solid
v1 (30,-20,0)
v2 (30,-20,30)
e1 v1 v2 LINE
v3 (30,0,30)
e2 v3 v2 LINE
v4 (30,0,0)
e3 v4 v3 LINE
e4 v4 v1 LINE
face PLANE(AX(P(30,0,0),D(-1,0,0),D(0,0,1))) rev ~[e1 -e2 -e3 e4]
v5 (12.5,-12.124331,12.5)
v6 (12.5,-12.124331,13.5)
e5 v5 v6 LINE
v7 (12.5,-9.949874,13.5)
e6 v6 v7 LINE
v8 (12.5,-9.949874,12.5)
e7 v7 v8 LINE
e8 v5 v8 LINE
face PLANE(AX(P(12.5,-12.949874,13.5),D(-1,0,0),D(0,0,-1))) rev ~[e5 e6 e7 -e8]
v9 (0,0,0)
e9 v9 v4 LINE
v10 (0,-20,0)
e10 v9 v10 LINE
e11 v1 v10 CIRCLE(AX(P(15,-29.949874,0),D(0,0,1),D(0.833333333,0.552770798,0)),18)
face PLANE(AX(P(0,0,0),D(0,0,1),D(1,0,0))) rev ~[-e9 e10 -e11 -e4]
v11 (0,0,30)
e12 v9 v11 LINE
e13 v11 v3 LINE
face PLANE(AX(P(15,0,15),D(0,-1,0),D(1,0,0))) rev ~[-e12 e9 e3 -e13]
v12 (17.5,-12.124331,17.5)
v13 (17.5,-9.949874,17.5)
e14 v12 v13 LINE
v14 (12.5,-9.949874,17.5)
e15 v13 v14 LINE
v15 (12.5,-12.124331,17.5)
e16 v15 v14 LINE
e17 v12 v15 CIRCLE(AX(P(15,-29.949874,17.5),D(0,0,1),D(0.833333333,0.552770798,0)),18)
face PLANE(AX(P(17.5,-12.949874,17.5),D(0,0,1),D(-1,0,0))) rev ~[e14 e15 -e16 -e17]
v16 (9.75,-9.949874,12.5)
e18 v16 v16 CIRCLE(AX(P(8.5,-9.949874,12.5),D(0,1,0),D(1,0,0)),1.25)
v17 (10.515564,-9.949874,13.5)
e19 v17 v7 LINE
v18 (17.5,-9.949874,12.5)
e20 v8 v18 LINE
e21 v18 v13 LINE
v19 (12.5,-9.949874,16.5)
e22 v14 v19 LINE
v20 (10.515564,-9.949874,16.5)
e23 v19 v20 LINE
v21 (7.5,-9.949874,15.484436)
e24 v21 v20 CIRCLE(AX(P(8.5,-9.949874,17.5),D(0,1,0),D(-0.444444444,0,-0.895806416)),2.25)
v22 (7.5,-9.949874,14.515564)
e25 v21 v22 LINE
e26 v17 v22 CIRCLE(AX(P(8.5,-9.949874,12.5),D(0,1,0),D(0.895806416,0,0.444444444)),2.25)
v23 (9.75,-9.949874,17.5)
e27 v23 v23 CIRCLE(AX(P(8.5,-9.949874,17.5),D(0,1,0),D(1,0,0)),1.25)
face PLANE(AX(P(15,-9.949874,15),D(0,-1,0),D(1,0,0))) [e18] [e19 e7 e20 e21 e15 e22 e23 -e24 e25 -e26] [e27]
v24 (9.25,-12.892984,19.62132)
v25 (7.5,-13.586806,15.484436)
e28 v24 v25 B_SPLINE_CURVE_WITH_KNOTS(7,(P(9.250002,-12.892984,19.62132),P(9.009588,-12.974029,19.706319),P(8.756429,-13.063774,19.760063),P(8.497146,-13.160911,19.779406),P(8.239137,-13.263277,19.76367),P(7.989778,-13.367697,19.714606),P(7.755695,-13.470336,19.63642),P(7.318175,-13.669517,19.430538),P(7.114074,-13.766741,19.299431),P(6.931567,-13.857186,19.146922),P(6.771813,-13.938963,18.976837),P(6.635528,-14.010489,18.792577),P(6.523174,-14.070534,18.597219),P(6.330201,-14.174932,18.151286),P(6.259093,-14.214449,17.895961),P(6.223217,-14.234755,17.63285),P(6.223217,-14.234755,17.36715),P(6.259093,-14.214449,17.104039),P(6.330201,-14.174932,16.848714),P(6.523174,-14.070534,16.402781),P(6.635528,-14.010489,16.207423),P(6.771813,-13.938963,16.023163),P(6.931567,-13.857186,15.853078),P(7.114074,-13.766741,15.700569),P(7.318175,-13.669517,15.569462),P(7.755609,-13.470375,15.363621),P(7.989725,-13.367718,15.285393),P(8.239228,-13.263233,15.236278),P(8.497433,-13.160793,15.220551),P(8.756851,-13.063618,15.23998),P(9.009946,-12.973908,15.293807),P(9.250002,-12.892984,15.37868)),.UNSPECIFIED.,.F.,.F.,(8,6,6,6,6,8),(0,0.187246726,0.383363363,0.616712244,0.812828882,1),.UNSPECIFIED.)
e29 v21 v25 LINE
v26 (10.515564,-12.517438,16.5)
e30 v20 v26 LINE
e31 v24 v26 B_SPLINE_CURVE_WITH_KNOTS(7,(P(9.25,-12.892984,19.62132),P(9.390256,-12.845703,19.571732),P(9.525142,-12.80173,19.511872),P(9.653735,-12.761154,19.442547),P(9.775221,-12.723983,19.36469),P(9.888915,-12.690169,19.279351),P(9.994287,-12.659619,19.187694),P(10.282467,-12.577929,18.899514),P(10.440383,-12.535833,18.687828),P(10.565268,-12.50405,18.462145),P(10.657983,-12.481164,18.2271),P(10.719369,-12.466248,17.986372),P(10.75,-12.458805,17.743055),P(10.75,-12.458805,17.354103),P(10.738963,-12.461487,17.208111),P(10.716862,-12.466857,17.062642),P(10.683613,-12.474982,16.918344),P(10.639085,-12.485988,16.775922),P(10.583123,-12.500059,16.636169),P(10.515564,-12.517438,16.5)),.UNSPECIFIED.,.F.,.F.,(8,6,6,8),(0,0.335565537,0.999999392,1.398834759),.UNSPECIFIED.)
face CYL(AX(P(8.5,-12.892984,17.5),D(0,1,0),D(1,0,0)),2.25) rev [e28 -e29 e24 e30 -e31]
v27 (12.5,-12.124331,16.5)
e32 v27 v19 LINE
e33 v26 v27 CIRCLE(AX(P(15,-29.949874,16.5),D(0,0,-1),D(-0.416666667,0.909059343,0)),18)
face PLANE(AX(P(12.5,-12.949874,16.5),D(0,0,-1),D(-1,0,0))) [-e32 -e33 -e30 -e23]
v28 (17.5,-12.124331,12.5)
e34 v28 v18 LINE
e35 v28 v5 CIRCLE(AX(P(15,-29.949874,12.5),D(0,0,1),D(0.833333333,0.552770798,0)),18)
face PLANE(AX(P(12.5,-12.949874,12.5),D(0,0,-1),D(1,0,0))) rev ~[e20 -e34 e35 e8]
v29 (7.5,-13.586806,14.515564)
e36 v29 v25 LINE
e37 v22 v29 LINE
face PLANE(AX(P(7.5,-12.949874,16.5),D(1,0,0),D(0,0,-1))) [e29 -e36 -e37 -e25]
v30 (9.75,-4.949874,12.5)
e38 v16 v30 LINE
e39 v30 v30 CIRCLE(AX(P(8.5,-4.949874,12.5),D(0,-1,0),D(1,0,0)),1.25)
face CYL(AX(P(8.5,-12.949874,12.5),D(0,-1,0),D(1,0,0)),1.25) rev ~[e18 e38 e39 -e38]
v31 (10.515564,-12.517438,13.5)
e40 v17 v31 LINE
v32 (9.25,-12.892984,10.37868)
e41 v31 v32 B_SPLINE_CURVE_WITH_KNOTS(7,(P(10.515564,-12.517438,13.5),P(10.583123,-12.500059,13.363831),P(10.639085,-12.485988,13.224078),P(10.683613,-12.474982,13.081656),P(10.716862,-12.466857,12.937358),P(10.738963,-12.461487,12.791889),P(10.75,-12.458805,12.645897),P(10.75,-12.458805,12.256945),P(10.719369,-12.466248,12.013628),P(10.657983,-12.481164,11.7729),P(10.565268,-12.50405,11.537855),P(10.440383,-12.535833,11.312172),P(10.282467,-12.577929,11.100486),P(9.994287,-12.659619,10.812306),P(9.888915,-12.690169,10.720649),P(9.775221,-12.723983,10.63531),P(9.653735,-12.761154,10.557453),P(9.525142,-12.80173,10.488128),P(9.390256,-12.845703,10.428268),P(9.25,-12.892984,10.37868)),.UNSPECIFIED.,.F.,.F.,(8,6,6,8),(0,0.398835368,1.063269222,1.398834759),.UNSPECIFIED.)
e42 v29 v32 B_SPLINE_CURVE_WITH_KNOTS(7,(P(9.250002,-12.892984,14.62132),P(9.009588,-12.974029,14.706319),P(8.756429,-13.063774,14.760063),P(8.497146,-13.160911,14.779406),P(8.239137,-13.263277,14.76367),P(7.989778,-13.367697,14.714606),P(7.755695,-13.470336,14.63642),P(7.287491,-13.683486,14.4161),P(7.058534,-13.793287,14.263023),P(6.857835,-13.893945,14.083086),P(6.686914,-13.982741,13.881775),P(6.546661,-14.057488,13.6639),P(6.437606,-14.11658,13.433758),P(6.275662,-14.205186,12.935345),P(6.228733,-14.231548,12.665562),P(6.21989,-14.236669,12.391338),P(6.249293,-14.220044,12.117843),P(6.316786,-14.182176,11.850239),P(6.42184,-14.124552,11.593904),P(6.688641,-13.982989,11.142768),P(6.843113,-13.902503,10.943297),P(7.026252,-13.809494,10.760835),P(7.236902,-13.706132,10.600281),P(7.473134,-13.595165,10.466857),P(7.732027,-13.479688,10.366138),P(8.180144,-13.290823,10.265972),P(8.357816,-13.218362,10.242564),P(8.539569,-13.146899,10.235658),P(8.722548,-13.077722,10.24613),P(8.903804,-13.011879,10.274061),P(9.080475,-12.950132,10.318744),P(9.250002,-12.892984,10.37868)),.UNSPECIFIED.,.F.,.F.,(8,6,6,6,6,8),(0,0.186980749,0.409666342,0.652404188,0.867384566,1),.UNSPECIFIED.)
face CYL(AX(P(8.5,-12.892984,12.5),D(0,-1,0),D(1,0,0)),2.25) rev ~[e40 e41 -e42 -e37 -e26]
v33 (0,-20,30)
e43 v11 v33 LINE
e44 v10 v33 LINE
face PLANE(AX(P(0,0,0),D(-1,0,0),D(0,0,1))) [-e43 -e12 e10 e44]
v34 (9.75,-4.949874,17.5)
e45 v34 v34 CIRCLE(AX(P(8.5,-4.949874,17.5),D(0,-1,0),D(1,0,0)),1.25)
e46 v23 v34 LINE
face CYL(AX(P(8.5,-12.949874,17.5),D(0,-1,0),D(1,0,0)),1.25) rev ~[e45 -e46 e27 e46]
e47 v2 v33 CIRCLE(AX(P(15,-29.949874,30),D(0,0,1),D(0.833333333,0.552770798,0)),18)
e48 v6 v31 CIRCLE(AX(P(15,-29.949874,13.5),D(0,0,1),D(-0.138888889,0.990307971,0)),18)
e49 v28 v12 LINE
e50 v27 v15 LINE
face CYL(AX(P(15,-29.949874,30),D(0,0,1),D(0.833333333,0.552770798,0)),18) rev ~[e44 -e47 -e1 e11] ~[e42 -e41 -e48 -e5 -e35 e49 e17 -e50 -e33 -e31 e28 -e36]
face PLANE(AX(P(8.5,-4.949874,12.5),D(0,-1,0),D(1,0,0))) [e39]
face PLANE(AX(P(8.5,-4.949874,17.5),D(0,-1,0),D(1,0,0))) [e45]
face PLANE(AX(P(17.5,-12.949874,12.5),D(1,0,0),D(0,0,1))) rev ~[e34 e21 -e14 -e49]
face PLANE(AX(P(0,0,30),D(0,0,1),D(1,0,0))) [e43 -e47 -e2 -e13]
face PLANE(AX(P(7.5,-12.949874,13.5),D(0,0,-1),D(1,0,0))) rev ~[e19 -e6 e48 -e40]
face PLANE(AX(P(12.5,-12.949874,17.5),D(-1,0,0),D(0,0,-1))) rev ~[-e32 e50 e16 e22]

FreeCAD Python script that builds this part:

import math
import FreeCAD as App
import Part
import Sketcher

doc = App.newDocument("Part")
params = doc.addObject("Spreadsheet::Sheet", "Params")
for row, (alias, value) in enumerate([
    ("sketch1_width", "30 mm"),
    ("pad1_length", "20 mm"),
    ("sketch2_radius", "18 mm"),
    ("sketch2_width", "30 mm"),
    ("sketch3_width", "5 mm"),
    ("sketch3_height", "1 mm"),
    ("pocket2_length", "3 mm"),
    ("sketch4_width", "5 mm"),
    ("sketch4_height", "1 mm"),
    ("sketch5_diameter", "2.5 mm"),
    ("pocket4_length", "8 mm"),
    ("sketch6_diameter", "2.5 mm"),
    ("sketch7_diameter", "4.5 mm"),
    ("pocket6_length", "2.94311 mm"),
    ("sketch8_diameter", "4.5 mm"),
], start=1):
    params.set(f"A{row}", alias)
    params.set(f"B{row}", "=" + value)
    params.setAlias(f"B{row}", alias)

body = doc.addObject("PartDesign::Body", "Body")

sketch1 = body.newObject("Sketcher::SketchObject", "Sketch")
sketch1.AttachmentSupport = (doc.getObject("XZ_Plane"), [""])
sketch1.MapMode = "FlatFace"
sketch1.addGeometry(Part.LineSegment(App.Vector(0, 30, 0), App.Vector(0, 0, 0)), False)
sketch1.addGeometry(Part.LineSegment(App.Vector(0, 0, 0), App.Vector(30, 0, 0)), False)
sketch1.addGeometry(Part.LineSegment(App.Vector(30, 0, 0), App.Vector(30, 30, 0)), False)
sketch1.addGeometry(Part.LineSegment(App.Vector(30, 30, 0), App.Vector(0, 30, 0)), False)
sketch1.addConstraint(Sketcher.Constraint("Coincident", 0, 2, 1, 1))
sketch1.addConstraint(Sketcher.Constraint("Coincident", 1, 2, 2, 1))
sketch1.addConstraint(Sketcher.Constraint("Coincident", 2, 2, 3, 1))
sketch1.addConstraint(Sketcher.Constraint("Coincident", 3, 2, 0, 1))
sketch1.addConstraint(Sketcher.Constraint("Vertical", 0))
sketch1.addConstraint(Sketcher.Constraint("Horizontal", 1))
sketch1.addConstraint(Sketcher.Constraint("Vertical", 2))
sketch1.addConstraint(Sketcher.Constraint("Horizontal", 3))
sketch1.addConstraint(Sketcher.Constraint("Coincident", 0, 2, -1, 1))
sketch1.addConstraint(Sketcher.Constraint("Equal", 3, 0))
sketch1.addConstraint(Sketcher.Constraint("DistanceX", 1, 1, 1, 2, 30.0))
sketch1.setExpression("Constraints[10]", "Params.sketch1_width")
pad1 = body.newObject("PartDesign::Pad", "Pad")
pad1.Profile = sketch1
pad1.setExpression("Length", "Params.pad1_length")

sketch2 = body.newObject("Sketcher::SketchObject", "Sketch001")
sketch2.AttachmentSupport = (doc.getObject("XY_Plane"), [""])
sketch2.MapMode = "FlatFace"
sketch2.AttachmentOffset = App.Placement(App.Vector(0, 0, 30), App.Rotation())
sketch2.addGeometry(Part.LineSegment(App.Vector(0, -20, 0), App.Vector(30, -20, 0)), False)
sketch2.addGeometry(Part.ArcOfCircle(Part.Circle(App.Vector(15, -30, 0), App.Vector(0, 0, 1), 18), math.radians(34), math.radians(146)), False)
sketch2.addConstraint(Sketcher.Constraint("Coincident", 0, 1, 1, 2))
sketch2.addConstraint(Sketcher.Constraint("Coincident", 1, 1, 0, 2))
sketch2.addConstraint(Sketcher.Constraint("Horizontal", 0))
sketch2.addConstraint(Sketcher.Constraint("PointOnObject", 0, 1, -2))
sketch2.addConstraint(Sketcher.Constraint("Radius", 1, 18.0))
sketch2.addConstraint(Sketcher.Constraint("DistanceX", 0, 1, 0, 2, 30.0))
sketch2.addConstraint(Sketcher.Constraint("DistanceY", 0, 1, -1, 1, 20.0))
sketch2.setExpression("Constraints[4]", "Params.sketch2_radius")
sketch2.setExpression("Constraints[5]", "Params.sketch2_width")
pocket1 = body.newObject("PartDesign::Pocket", "Pocket")
pocket1.Profile = sketch2
pocket1.Type = "ThroughAll"

sketch3 = body.newObject("Sketcher::SketchObject", "Sketch002")
sketch3.AttachmentSupport = (doc.getObject("XZ_Plane"), [""])
sketch3.MapMode = "FlatFace"
sketch3.AttachmentOffset = App.Placement(App.Vector(0, 0, 12.949874), App.Rotation())
sketch3.addGeometry(Part.LineSegment(App.Vector(17.5, 17.5, 0), App.Vector(12.5, 17.5, 0)), False)
sketch3.addGeometry(Part.LineSegment(App.Vector(12.5, 17.5, 0), App.Vector(12.5, 16.5, 0)), False)
sketch3.addGeometry(Part.LineSegment(App.Vector(12.5, 16.5, 0), App.Vector(7.5, 16.5, 0)), False)
sketch3.addGeometry(Part.LineSegment(App.Vector(7.5, 16.5, 0), App.Vector(7.5, 13.5, 0)), False)
sketch3.addGeometry(Part.LineSegment(App.Vector(7.5, 13.5, 0), App.Vector(12.5, 13.5, 0)), False)
sketch3.addGeometry(Part.LineSegment(App.Vector(12.5, 13.5, 0), App.Vector(12.5, 12.5, 0)), False)
sketch3.addGeometry(Part.LineSegment(App.Vector(12.5, 12.5, 0), App.Vector(17.5, 12.5, 0)), False)
sketch3.addGeometry(Part.LineSegment(App.Vector(17.5, 12.5, 0), App.Vector(17.5, 17.5, 0)), False)
sketch3.addConstraint(Sketcher.Constraint("Coincident", 0, 2, 1, 1))
sketch3.addConstraint(Sketcher.Constraint("Coincident", 1, 2, 2, 1))
sketch3.addConstraint(Sketcher.Constraint("Coincident", 2, 2, 3, 1))
sketch3.addConstraint(Sketcher.Constraint("Coincident", 3, 2, 4, 1))
sketch3.addConstraint(Sketcher.Constraint("Coincident", 4, 2, 5, 1))
sketch3.addConstraint(Sketcher.Constraint("Coincident", 5, 2, 6, 1))
sketch3.addConstraint(Sketcher.Constraint("Coincident", 6, 2, 7, 1))
sketch3.addConstraint(Sketcher.Constraint("Coincident", 7, 2, 0, 1))
sketch3.addConstraint(Sketcher.Constraint("Horizontal", 0))
sketch3.addConstraint(Sketcher.Constraint("Vertical", 1))
sketch3.addConstraint(Sketcher.Constraint("Horizontal", 2))
sketch3.addConstraint(Sketcher.Constraint("Vertical", 3))
sketch3.addConstraint(Sketcher.Constraint("Horizontal", 4))
sketch3.addConstraint(Sketcher.Constraint("Vertical", 5))
sketch3.addConstraint(Sketcher.Constraint("Horizontal", 6))
sketch3.addConstraint(Sketcher.Constraint("Vertical", 7))
sketch3.addConstraint(Sketcher.Constraint("Vertical", 1, 2, 4, 2))
sketch3.addConstraint(Sketcher.Constraint("Equal", 0, 2))
sketch3.addConstraint(Sketcher.Constraint("Equal", 1, 5))
sketch3.addConstraint(Sketcher.Constraint("Equal", 6, 7))
sketch3.addConstraint(Sketcher.Constraint("DistanceX", 0, 2, 0, 1, 5.0))
sketch3.addConstraint(Sketcher.Constraint("DistanceY", 1, 2, 1, 1, 1.0))
sketch3.addConstraint(Sketcher.Constraint("DistanceX", -1, 1, 0, 2, 12.5))
sketch3.addConstraint(Sketcher.Constraint("DistanceY", -1, 1, 0, 2, 17.5))
sketch3.setExpression("Constraints[20]", "Params.sketch3_width")
sketch3.setExpression("Constraints[21]", "Params.sketch3_height")
pocket2 = body.newObject("PartDesign::Pocket", "Pocket001")
pocket2.Profile = sketch3
pocket2.setExpression("Length", "Params.pocket2_length")

sketch4 = body.newObject("Sketcher::SketchObject", "Sketch003")
sketch4.AttachmentSupport = (doc.getObject("XZ_Plane"), [""])
sketch4.MapMode = "FlatFace"
sketch4.AttachmentOffset = App.Placement(App.Vector(0, 0, 12.949874), App.Rotation())
sketch4.addGeometry(Part.LineSegment(App.Vector(17.5, 17.5, 0), App.Vector(12.5, 17.5, 0)), False)
sketch4.addGeometry(Part.LineSegment(App.Vector(12.5, 17.5, 0), App.Vector(12.5, 16.5, 0)), False)
sketch4.addGeometry(Part.LineSegment(App.Vector(12.5, 16.5, 0), App.Vector(7.5, 16.5, 0)), False)
sketch4.addGeometry(Part.LineSegment(App.Vector(7.5, 16.5, 0), App.Vector(7.5, 13.5, 0)), False)
sketch4.addGeometry(Part.LineSegment(App.Vector(7.5, 13.5, 0), App.Vector(12.5, 13.5, 0)), False)
sketch4.addGeometry(Part.LineSegment(App.Vector(12.5, 13.5, 0), App.Vector(12.5, 12.5, 0)), False)
sketch4.addGeometry(Part.LineSegment(App.Vector(12.5, 12.5, 0), App.Vector(17.5, 12.5, 0)), False)
sketch4.addGeometry(Part.LineSegment(App.Vector(17.5, 12.5, 0), App.Vector(17.5, 17.5, 0)), False)
sketch4.addConstraint(Sketcher.Constraint("Coincident", 0, 2, 1, 1))
sketch4.addConstraint(Sketcher.Constraint("Coincident", 1, 2, 2, 1))
sketch4.addConstraint(Sketcher.Constraint("Coincident", 2, 2, 3, 1))
sketch4.addConstraint(Sketcher.Constraint("Coincident", 3, 2, 4, 1))
sketch4.addConstraint(Sketcher.Constraint("Coincident", 4, 2, 5, 1))
sketch4.addConstraint(Sketcher.Constraint("Coincident", 5, 2, 6, 1))
sketch4.addConstraint(Sketcher.Constraint("Coincident", 6, 2, 7, 1))
sketch4.addConstraint(Sketcher.Constraint("Coincident", 7, 2, 0, 1))
sketch4.addConstraint(Sketcher.Constraint("Horizontal", 0))
sketch4.addConstraint(Sketcher.Constraint("Vertical", 1))
sketch4.addConstraint(Sketcher.Constraint("Horizontal", 2))
sketch4.addConstraint(Sketcher.Constraint("Vertical", 3))
sketch4.addConstraint(Sketcher.Constraint("Horizontal", 4))
sketch4.addConstraint(Sketcher.Constraint("Vertical", 5))
sketch4.addConstraint(Sketcher.Constraint("Horizontal", 6))
sketch4.addConstraint(Sketcher.Constraint("Vertical", 7))
sketch4.addConstraint(Sketcher.Constraint("Vertical", 1, 2, 4, 2))
sketch4.addConstraint(Sketcher.Constraint("Equal", 0, 2))
sketch4.addConstraint(Sketcher.Constraint("Equal", 1, 5))
sketch4.addConstraint(Sketcher.Constraint("Equal", 6, 7))
sketch4.addConstraint(Sketcher.Constraint("DistanceX", 0, 2, 0, 1, 5.0))
sketch4.addConstraint(Sketcher.Constraint("DistanceY", 1, 2, 1, 1, 1.0))
sketch4.addConstraint(Sketcher.Constraint("DistanceX", -1, 1, 0, 2, 12.5))
sketch4.addConstraint(Sketcher.Constraint("DistanceY", -1, 1, 0, 2, 17.5))
sketch4.setExpression("Constraints[20]", "Params.sketch4_width")
sketch4.setExpression("Constraints[21]", "Params.sketch4_height")
pocket3 = body.newObject("PartDesign::Pocket", "Pocket002")
pocket3.Profile = sketch4
pocket3.Type = "ThroughAll"
pocket3.Reversed = True

sketch5 = body.newObject("Sketcher::SketchObject", "Sketch004")
sketch5.AttachmentSupport = (doc.getObject("XZ_Plane"), [""])
sketch5.MapMode = "FlatFace"
sketch5.AttachmentOffset = App.Placement(App.Vector(0, 0, 12.949874), App.Rotation())
sketch5.addGeometry(Part.Circle(App.Vector(8.5, 17.5, 0), App.Vector(0, 0, 1), 1.2), False)
sketch5.addGeometry(Part.Circle(App.Vector(8.5, 12.5, 0), App.Vector(0, 0, 1), 1.2), False)
sketch5.addConstraint(Sketcher.Constraint("Equal", 0, 1))
sketch5.addConstraint(Sketcher.Constraint("Vertical", 0, 3, 1, 3))
sketch5.addConstraint(Sketcher.Constraint("Diameter", 0, 2.5))
sketch5.addConstraint(Sketcher.Constraint("DistanceY", 1, 3, 0, 3, 5.0))
sketch5.addConstraint(Sketcher.Constraint("DistanceX", -1, 1, 0, 3, 8.5))
sketch5.addConstraint(Sketcher.Constraint("DistanceY", -1, 1, 0, 3, 17.5))
sketch5.setExpression("Constraints[2]", "Params.sketch5_diameter")
pocket4 = body.newObject("PartDesign::Pocket", "Pocket003")
pocket4.Profile = sketch5
pocket4.setExpression("Length", "Params.pocket4_length")

sketch6 = body.newObject("Sketcher::SketchObject", "Sketch005")
sketch6.AttachmentSupport = (doc.getObject("XZ_Plane"), [""])
sketch6.MapMode = "FlatFace"
sketch6.AttachmentOffset = App.Placement(App.Vector(0, 0, 12.949874), App.Rotation())
sketch6.addGeometry(Part.Circle(App.Vector(8.5, 17.5, 0), App.Vector(0, 0, 1), 1.2), False)
sketch6.addGeometry(Part.Circle(App.Vector(8.5, 12.5, 0), App.Vector(0, 0, 1), 1.2), False)
sketch6.addConstraint(Sketcher.Constraint("Equal", 0, 1))
sketch6.addConstraint(Sketcher.Constraint("Vertical", 0, 3, 1, 3))
sketch6.addConstraint(Sketcher.Constraint("Diameter", 0, 2.5))
sketch6.addConstraint(Sketcher.Constraint("DistanceY", 1, 3, 0, 3, 5.0))
sketch6.addConstraint(Sketcher.Constraint("DistanceX", -1, 1, 0, 3, 8.5))
sketch6.addConstraint(Sketcher.Constraint("DistanceY", -1, 1, 0, 3, 17.5))
sketch6.setExpression("Constraints[2]", "Params.sketch6_diameter")
pocket5 = body.newObject("PartDesign::Pocket", "Pocket004")
pocket5.Profile = sketch6
pocket5.Type = "ThroughAll"
pocket5.Reversed = True

sketch7 = body.newObject("Sketcher::SketchObject", "Sketch006")
sketch7.AttachmentSupport = (doc.getObject("XZ_Plane"), [""])
sketch7.MapMode = "FlatFace"
sketch7.AttachmentOffset = App.Placement(App.Vector(0, 0, 12.892984), App.Rotation())
sketch7.addGeometry(Part.Circle(App.Vector(8.5, 17.5, 0), App.Vector(0, 0, 1), 2.2), False)
sketch7.addGeometry(Part.Circle(App.Vector(8.5, 12.5, 0), App.Vector(0, 0, 1), 2.2), False)
sketch7.addConstraint(Sketcher.Constraint("Equal", 0, 1))
sketch7.addConstraint(Sketcher.Constraint("Vertical", 0, 3, 1, 3))
sketch7.addConstraint(Sketcher.Constraint("Diameter", 0, 4.5))
sketch7.addConstraint(Sketcher.Constraint("DistanceY", 1, 3, 0, 3, 5.0))
sketch7.addConstraint(Sketcher.Constraint("DistanceX", -1, 1, 0, 3, 8.5))
sketch7.addConstraint(Sketcher.Constraint("DistanceY", -1, 1, 0, 3, 17.5))
sketch7.setExpression("Constraints[2]", "Params.sketch7_diameter")
pocket6 = body.newObject("PartDesign::Pocket", "Pocket005")
pocket6.Profile = sketch7
pocket6.setExpression("Length", "Params.pocket6_length")

sketch8 = body.newObject("Sketcher::SketchObject", "Sketch007")
sketch8.AttachmentSupport = (doc.getObject("XZ_Plane"), [""])
sketch8.MapMode = "FlatFace"
sketch8.AttachmentOffset = App.Placement(App.Vector(0, 0, 12.892984), App.Rotation())
sketch8.addGeometry(Part.Circle(App.Vector(8.5, 17.5, 0), App.Vector(0, 0, 1), 2.2), False)
sketch8.addGeometry(Part.Circle(App.Vector(8.5, 12.5, 0), App.Vector(0, 0, 1), 2.2), False)
sketch8.addConstraint(Sketcher.Constraint("Equal", 0, 1))
sketch8.addConstraint(Sketcher.Constraint("Vertical", 0, 3, 1, 3))
sketch8.addConstraint(Sketcher.Constraint("Diameter", 0, 4.5))
sketch8.addConstraint(Sketcher.Constraint("DistanceY", 1, 3, 0, 3, 5.0))
sketch8.addConstraint(Sketcher.Constraint("DistanceX", -1, 1, 0, 3, 8.5))
sketch8.addConstraint(Sketcher.Constraint("DistanceY", -1, 1, 0, 3, 17.5))
sketch8.setExpression("Constraints[2]", "Params.sketch8_diameter")
pocket7 = body.newObject("PartDesign::Pocket", "Pocket006")
pocket7.Profile = sketch8
pocket7.Type = "ThroughAll"
pocket7.Reversed = True

doc.recompute()
